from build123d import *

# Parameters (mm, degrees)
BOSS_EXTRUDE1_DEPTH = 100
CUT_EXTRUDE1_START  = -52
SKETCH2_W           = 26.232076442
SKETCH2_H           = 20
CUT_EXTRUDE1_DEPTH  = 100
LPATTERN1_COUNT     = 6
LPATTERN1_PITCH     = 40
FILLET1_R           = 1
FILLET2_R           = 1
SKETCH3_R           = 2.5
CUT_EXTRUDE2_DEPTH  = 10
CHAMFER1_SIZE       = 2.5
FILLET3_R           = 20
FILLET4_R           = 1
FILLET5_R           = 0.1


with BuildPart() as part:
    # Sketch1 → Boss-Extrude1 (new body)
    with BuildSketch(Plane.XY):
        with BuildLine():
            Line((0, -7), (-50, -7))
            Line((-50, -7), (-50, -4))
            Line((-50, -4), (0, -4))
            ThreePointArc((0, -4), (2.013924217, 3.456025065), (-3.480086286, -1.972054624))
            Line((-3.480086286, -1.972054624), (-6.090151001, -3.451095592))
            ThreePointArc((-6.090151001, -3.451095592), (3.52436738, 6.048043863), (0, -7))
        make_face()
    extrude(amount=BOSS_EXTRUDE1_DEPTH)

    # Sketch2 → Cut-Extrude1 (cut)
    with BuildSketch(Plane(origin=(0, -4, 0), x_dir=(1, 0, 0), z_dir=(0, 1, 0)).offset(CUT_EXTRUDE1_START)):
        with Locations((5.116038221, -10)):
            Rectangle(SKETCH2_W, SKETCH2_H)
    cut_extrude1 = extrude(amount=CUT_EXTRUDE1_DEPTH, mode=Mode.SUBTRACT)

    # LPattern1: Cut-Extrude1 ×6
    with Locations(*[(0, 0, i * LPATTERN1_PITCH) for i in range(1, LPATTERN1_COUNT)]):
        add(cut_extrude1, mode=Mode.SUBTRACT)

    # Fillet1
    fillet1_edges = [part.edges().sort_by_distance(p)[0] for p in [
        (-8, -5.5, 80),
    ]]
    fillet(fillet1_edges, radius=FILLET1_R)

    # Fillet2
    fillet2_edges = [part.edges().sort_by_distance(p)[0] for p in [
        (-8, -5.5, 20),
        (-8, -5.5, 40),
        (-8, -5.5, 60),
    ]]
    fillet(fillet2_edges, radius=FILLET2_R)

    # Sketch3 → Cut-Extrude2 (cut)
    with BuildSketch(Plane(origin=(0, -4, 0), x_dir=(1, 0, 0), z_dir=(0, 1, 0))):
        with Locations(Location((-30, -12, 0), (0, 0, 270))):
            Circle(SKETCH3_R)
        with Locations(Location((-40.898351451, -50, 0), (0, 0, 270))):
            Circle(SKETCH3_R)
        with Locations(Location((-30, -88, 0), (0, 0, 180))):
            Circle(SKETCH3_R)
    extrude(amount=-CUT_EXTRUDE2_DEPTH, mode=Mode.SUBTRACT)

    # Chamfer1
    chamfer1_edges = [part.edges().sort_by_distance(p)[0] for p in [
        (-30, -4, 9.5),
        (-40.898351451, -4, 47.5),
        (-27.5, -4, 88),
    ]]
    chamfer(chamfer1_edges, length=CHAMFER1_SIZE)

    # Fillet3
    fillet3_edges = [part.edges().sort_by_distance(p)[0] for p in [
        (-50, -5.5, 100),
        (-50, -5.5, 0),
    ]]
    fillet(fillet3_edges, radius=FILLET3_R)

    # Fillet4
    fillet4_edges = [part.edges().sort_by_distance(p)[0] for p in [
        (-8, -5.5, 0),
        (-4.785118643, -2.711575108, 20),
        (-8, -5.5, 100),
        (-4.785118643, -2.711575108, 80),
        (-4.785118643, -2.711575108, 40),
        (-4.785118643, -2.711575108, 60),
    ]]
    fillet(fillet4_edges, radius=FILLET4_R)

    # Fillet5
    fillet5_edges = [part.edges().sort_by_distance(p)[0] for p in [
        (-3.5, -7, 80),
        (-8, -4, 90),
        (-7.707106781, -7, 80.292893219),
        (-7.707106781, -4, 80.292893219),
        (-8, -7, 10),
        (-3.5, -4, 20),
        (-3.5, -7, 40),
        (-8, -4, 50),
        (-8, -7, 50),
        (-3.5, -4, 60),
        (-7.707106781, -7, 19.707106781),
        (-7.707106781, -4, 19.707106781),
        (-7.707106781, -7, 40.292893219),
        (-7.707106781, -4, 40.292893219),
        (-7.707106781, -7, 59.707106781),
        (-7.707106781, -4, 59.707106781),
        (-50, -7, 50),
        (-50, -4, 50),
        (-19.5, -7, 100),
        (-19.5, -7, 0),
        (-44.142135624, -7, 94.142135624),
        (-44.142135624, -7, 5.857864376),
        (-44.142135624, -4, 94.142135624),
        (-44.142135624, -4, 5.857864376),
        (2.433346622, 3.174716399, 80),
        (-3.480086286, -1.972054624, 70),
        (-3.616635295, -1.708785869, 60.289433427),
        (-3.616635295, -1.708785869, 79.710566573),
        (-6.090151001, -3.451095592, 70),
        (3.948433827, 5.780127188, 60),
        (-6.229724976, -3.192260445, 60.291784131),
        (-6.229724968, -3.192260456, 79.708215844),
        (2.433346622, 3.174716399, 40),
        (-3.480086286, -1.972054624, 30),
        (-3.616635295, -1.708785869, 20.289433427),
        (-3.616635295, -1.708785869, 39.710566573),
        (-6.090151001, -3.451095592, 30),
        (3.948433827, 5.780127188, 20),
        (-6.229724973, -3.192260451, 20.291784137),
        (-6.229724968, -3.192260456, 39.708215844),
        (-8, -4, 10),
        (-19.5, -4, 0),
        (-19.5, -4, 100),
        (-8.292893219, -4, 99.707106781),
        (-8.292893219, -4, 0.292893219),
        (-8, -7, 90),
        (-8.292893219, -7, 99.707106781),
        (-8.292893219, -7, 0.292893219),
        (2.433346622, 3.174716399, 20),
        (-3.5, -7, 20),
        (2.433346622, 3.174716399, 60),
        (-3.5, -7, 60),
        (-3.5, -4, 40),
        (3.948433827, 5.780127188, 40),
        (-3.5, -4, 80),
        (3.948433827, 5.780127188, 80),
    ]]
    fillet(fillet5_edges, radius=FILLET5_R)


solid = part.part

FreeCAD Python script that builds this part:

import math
import FreeCAD as App
import Part
import Sketcher

V = App.Vector
Q = App.Units.Quantity


def edges_at(feature, points):
    """Names of the edges that pass closest to the given points."""
    edges = feature.Shape.Edges
    near = lambda p: min(range(len(edges)), key=lambda i: edges[i].distToShape(Part.Vertex(*p))[0])
    return sorted({f"Edge{near(p) + 1}" for p in points})


def add_polygon(sketch, points):
    """Adds a closed chain of lines whose ends are joined by coincident constraints."""
    first, n = sketch.GeometryCount, len(points)
    for a, b in zip(points, points[1:] + points[:1]):
        sketch.addGeometry(Part.LineSegment(App.Vector(*a, 0), App.Vector(*b, 0)), False)
    for i in range(n):
        sketch.addConstraint(Sketcher.Constraint("Coincident", first + i, 2, first + (i + 1) % n, 1))

doc = App.newDocument("Part")
body = doc.addObject("PartDesign::Body", "Body")

sketch1 = body.newObject("Sketcher::SketchObject", "Sketch")
sketch1.AttachmentSupport = (doc.getObject("XY_Plane"), [""])
sketch1.MapMode = "FlatFace"
sketch1.addGeometry([
    Part.LineSegment(V(-50, -7, 0), V(0, -7, 0)),
    Part.ArcOfCircle(Part.Circle(V(0, 0, 0), V(0, 0, 1), 7), math.radians(-90), math.radians(210)),
    Part.LineSegment(V(-6.1, -3.5, 0), V(-3.5, -2, 0)),
    Part.ArcOfCircle(Part.Circle(V(0, 0, 0), V(0, 0, 1), 4), math.radians(-90), math.radians(210)),
    Part.LineSegment(V(0, -4, 0), V(-50, -4, 0)),
    Part.LineSegment(V(-50, -4, 0), V(-50, -7, 0)),
], False)
sketch1.addConstraint([
    Sketcher.Constraint("Tangent", 0, 2, 1, 1),
    Sketcher.Constraint("Coincident", 1, 2, 2, 1),
    Sketcher.Constraint("Coincident", 2, 2, 3, 2),
    Sketcher.Constraint("Tangent", 3, 1, 4, 1),
    Sketcher.Constraint("Coincident", 4, 2, 5, 1),
    Sketcher.Constraint("Coincident", 5, 2, 0, 1),
    Sketcher.Constraint("Horizontal", 0),
    Sketcher.Constraint("Horizontal", 4),
    Sketcher.Constraint("Vertical", 5),
    Sketcher.Constraint("Coincident", 1, 3, -1, 1),
    Sketcher.Constraint("Coincident", 3, 3, -1, 1),
    Sketcher.Constraint("Radius", 1, Q("7 mm")),
    Sketcher.Constraint("Radius", 3, Q("4 mm")),
    Sketcher.Constraint("DistanceX", 0, 1, 0, 2, Q("50 mm")),
    Sketcher.Constraint("DistanceX", 1, 2, -1, 1, Q("6.090151 mm")),
    Sketcher.Constraint("DistanceY", 1, 2, 2, 2, Q("1.479041 mm")),
])
pad1 = body.newObject("PartDesign::Pad", "Pad")
pad1.Profile = sketch1
pad1.Length = 100

sketch2 = body.newObject("Sketcher::SketchObject", "Sketch001")
sketch2.AttachmentSupport = (doc.getObject("XZ_Plane"), [""])
sketch2.MapMode = "FlatFace"
sketch2.AttachmentOffset = App.Placement(V(0, 0, 56), App.Rotation())
add_polygon(sketch2, [(-8, 0), (-8, 20), (18, 20), (18, 0)])
sketch2.addConstraint([
    Sketcher.Constraint("Vertical", 0),
    Sketcher.Constraint("Horizontal", 1),
    Sketcher.Constraint("Vertical", 2),
    Sketcher.Constraint("Horizontal", 3),
    Sketcher.Constraint("PointOnObject", 2, 2, -1),
    Sketcher.Constraint("DistanceY", 0, 1, 0, 2, Q("20 mm")),
    Sketcher.Constraint("DistanceX", 0, 2, -1, 1, Q("8 mm")),
    Sketcher.Constraint("DistanceX", 1, 1, 1, 2, Q("26.232076 mm")),
])
pocket1 = body.newObject("PartDesign::Pocket", "Pocket")
pocket1.Profile = sketch2
pocket1.Length = 100
doc.recompute()

linearpattern = body.newObject("PartDesign::LinearPattern", "LinearPattern")
linearpattern.Originals = [pocket1]
linearpattern.Direction = (doc.getObject("Z_Axis"), [""])
linearpattern.Mode = "offset"
linearpattern.Offset = 40
linearpattern.Occurrences = 6
body.Tip = linearpattern
doc.recompute()

fillet = body.newObject("PartDesign::Fillet", "Fillet")
fillet.Base = (linearpattern, edges_at(linearpattern, [(-8, -5.5, 80)]))
fillet.Radius = 1
doc.recompute()

fillet2 = body.newObject("PartDesign::Fillet", "Fillet001")
fillet2.Base = (fillet, edges_at(fillet, [(-8, -5.5, 20), (-8, -5.5, 40), (-8, -5.5, 60)]))
fillet2.Radius = 1

sketch3 = body.newObject("Sketcher::SketchObject", "Sketch002")
sketch3.AttachmentSupport = (doc.getObject("XZ_Plane"), [""])
sketch3.MapMode = "FlatFace"
sketch3.AttachmentOffset = App.Placement(V(0, 0, 4), App.Rotation())
sketch3.addGeometry([
    Part.Circle(V(-30, 12, 0), V(0, 0, 1), 2.5),
    Part.Circle(V(-40.9, 50, 0), V(0, 0, 1), 2.5),
    Part.Circle(V(-30, 88, 0), V(0, 0, 1), 2.5),
], False)
sketch3.addConstraint([
    Sketcher.Constraint("Equal", 0, 1),
    Sketcher.Constraint("Equal", 1, 2),
    Sketcher.Constraint("Vertical", 0, 3, 2, 3),
    Sketcher.Constraint("Diameter", 0, Q("5 mm")),
    Sketcher.Constraint("DistanceX", 0, 3, -1, 1, Q("30 mm")),
    Sketcher.Constraint("DistanceY", -1, 1, 0, 3, Q("12 mm")),
    Sketcher.Constraint("DistanceY", -1, 1, 1, 3, Q("50 mm")),
    Sketcher.Constraint("DistanceY", -1, 1, 2, 3, Q("88 mm")),
    Sketcher.Constraint("DistanceX", 1, 3, -1, 1, Q("40.898351 mm")),
])
pocket2 = body.newObject("PartDesign::Pocket", "Pocket001")
pocket2.Profile = sketch3
pocket2.Length = 10
pocket2.Reversed = True
doc.recompute()

chamfer = body.newObject("PartDesign::Chamfer", "Chamfer")
chamfer.Base = (pocket2, edges_at(pocket2, [(-30, -4, 9.5), (-40.898, -4, 47.5), (-27.5, -4, 88)]))
chamfer.Size = 2.5
doc.recompute()

fillet3 = body.newObject("PartDesign::Fillet", "Fillet002")
fillet3.Base = (chamfer, edges_at(chamfer, [(-50, -5.5, 100), (-50, -5.5, 0)]))
fillet3.Radius = 20
doc.recompute()

fillet4 = body.newObject("PartDesign::Fillet", "Fillet003")
fillet4.Base = (fillet3, edges_at(fillet3, [
    (-8, -5.5, 0),
    (-4.785, -2.712, 20),
    (-8, -5.5, 100),
    (-4.785, -2.712, 80),
    (-4.785, -2.712, 40),
    (-4.785, -2.712, 60),
]))
fillet4.Radius = 1
doc.recompute()

fillet5 = body.newObject("PartDesign::Fillet", "Fillet004")
fillet5.Base = (fillet4, edges_at(fillet4, [
    (-3.5, -7, 80),
    (-8, -4, 90),
    (-7.707, -7, 80.293),
    (-7.707, -4, 80.293),
    (-8, -7, 10),
    (-3.5, -4, 20),
    (-3.5, -7, 40),
    (-8, -4, 50),
    (-8, -7, 50),
    (-3.5, -4, 60),
    (-7.707, -7, 19.707),
    (-7.707, -4, 19.707),
    (-7.707, -7, 40.293),
    (-7.707, -4, 40.293),
    (-7.707, -7, 59.707),
    (-7.707, -4, 59.707),
    (-50, -7, 50),
    (-50, -4, 50),
    (-19.5, -7, 100),
    (-19.5, -7, 0),
    (-44.142, -7, 94.142),
    (-44.142, -7, 5.858),
    (-44.142, -4, 94.142),
    (-44.142, -4, 5.858),
    (2.433, 3.175, 80),
    (-3.48, -1.972, 70),
    (-3.617, -1.709, 60.289),
    (-3.617, -1.709, 79.711),
    (-6.09, -3.451, 70),
    (3.948, 5.78, 60),
    (-6.23, -3.192, 60.292),
    (-6.23, -3.192, 79.708),
    (2.433, 3.175, 40),
    (-3.48, -1.972, 30),
    (-3.617, -1.709, 20.289),
    (-3.617, -1.709, 39.711),
    (-6.09, -3.451, 30),
    (3.948, 5.78, 20),
    (-6.23, -3.192, 20.292),
    (-6.23, -3.192, 39.708),
    (-8, -4, 10),
    (-19.5, -4, 0),
    (-19.5, -4, 100),
    (-8.293, -4, 99.707),
    (-8.293, -4, 0.293),
    (-8, -7, 90),
    (-8.293, -7, 99.707),
    (-8.293, -7, 0.293),
    (2.433, 3.175, 20),
    (-3.5, -7, 20),
    (2.433, 3.175, 60),
    (-3.5, -7, 60),
    (-3.5, -4, 40),
    (3.948, 5.78, 40),
    (-3.5, -4, 80),
    (3.948, 5.78, 80),
]))
fillet5.Radius = 0.1

doc.recompute()
